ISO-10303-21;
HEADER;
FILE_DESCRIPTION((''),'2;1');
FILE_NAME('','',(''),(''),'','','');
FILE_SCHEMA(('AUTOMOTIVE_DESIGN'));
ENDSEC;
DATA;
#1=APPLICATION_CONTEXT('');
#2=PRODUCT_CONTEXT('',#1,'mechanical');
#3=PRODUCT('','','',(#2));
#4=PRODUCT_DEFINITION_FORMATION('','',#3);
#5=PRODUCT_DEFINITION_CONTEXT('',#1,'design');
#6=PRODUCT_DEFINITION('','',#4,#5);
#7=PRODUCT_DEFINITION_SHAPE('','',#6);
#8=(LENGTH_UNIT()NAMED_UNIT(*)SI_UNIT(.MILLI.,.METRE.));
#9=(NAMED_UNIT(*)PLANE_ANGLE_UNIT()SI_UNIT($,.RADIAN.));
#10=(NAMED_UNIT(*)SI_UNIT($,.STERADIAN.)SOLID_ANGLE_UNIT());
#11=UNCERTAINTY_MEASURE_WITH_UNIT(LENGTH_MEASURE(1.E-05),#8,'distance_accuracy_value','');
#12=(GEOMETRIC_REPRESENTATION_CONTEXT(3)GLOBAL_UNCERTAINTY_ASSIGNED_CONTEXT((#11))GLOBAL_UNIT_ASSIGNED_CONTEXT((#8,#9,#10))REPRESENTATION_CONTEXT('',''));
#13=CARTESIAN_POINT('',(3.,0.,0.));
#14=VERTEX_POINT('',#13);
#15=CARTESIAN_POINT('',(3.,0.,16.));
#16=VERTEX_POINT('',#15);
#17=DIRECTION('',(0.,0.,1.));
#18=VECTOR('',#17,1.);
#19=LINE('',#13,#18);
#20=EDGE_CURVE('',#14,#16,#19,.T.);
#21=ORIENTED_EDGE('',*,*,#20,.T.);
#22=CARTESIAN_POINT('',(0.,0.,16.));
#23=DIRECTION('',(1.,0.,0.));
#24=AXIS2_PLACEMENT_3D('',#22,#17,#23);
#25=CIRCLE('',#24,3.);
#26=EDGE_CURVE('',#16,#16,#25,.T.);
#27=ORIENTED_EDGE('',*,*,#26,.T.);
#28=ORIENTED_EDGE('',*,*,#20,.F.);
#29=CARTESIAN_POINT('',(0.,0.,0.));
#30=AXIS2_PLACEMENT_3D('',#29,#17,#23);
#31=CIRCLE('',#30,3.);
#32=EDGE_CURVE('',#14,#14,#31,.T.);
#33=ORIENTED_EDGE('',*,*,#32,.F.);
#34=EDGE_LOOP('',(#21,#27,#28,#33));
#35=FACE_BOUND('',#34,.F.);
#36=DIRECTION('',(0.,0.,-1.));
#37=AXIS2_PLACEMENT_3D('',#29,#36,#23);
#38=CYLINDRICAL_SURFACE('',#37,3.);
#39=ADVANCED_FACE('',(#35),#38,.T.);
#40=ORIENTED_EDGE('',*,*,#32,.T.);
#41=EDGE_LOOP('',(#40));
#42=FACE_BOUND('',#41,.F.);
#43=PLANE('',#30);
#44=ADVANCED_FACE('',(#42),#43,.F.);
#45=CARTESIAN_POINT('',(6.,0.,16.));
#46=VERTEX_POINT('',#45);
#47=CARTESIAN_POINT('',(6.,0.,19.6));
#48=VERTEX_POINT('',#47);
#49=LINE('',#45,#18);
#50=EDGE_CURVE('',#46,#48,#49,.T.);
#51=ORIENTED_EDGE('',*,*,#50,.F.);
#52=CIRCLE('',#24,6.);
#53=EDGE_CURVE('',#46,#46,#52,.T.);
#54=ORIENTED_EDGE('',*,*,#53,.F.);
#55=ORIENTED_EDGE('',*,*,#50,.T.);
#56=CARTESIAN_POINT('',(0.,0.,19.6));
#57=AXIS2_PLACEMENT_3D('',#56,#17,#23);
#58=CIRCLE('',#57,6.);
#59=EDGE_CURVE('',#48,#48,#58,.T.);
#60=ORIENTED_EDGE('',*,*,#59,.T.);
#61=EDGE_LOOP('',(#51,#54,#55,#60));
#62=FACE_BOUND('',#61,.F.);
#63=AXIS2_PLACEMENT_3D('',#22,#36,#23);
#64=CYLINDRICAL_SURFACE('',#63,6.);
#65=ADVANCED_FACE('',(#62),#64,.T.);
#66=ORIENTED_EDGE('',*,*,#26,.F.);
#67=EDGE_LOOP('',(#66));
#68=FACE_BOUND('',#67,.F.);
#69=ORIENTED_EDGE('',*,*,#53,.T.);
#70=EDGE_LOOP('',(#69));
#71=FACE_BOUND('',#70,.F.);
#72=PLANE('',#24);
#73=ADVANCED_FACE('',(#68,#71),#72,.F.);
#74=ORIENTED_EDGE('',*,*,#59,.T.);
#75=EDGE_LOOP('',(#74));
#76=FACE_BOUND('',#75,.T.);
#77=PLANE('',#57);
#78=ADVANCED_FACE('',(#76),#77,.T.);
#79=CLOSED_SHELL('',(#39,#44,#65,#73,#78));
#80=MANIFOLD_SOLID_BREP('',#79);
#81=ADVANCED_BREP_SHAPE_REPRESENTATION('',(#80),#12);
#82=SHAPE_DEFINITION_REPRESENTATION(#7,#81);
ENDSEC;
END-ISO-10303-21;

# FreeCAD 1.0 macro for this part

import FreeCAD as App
import Part
import Sketcher

doc = App.newDocument("Part")
body = doc.addObject("PartDesign::Body", "Body")

sketch1 = body.newObject("Sketcher::SketchObject", "Sketch")
sketch1.AttachmentSupport = (doc.getObject("XY_Plane"), [""])
sketch1.MapMode = "FlatFace"
sketch1.addGeometry(Part.Circle(App.Vector(0, 0, 0), App.Vector(0, 0, 1), 3), False)
sketch1.addConstraint(Sketcher.Constraint("Coincident", 0, 3, -1, 1))
sketch1.addConstraint(Sketcher.Constraint("Diameter", 0, 6.0))
pad1 = body.newObject("PartDesign::Pad", "Pad")
pad1.Profile = sketch1
pad1.Length = 16

sketch2 = body.newObject("Sketcher::SketchObject", "Sketch001")
sketch2.AttachmentSupport = (doc.getObject("XY_Plane"), [""])
sketch2.MapMode = "FlatFace"
sketch2.AttachmentOffset = App.Placement(App.Vector(0, 0, 16), App.Rotation())
sketch2.addGeometry(Part.Circle(App.Vector(0, 0, 0), App.Vector(0, 0, 1), 6), False)
sketch2.addConstraint(Sketcher.Constraint("Coincident", 0, 3, -1, 1))
sketch2.addConstraint(Sketcher.Constraint("Diameter", 0, 12.0))
pad2 = body.newObject("PartDesign::Pad", "Pad001")
pad2.Profile = sketch2
pad2.Length = 3.6

doc.recompute()
